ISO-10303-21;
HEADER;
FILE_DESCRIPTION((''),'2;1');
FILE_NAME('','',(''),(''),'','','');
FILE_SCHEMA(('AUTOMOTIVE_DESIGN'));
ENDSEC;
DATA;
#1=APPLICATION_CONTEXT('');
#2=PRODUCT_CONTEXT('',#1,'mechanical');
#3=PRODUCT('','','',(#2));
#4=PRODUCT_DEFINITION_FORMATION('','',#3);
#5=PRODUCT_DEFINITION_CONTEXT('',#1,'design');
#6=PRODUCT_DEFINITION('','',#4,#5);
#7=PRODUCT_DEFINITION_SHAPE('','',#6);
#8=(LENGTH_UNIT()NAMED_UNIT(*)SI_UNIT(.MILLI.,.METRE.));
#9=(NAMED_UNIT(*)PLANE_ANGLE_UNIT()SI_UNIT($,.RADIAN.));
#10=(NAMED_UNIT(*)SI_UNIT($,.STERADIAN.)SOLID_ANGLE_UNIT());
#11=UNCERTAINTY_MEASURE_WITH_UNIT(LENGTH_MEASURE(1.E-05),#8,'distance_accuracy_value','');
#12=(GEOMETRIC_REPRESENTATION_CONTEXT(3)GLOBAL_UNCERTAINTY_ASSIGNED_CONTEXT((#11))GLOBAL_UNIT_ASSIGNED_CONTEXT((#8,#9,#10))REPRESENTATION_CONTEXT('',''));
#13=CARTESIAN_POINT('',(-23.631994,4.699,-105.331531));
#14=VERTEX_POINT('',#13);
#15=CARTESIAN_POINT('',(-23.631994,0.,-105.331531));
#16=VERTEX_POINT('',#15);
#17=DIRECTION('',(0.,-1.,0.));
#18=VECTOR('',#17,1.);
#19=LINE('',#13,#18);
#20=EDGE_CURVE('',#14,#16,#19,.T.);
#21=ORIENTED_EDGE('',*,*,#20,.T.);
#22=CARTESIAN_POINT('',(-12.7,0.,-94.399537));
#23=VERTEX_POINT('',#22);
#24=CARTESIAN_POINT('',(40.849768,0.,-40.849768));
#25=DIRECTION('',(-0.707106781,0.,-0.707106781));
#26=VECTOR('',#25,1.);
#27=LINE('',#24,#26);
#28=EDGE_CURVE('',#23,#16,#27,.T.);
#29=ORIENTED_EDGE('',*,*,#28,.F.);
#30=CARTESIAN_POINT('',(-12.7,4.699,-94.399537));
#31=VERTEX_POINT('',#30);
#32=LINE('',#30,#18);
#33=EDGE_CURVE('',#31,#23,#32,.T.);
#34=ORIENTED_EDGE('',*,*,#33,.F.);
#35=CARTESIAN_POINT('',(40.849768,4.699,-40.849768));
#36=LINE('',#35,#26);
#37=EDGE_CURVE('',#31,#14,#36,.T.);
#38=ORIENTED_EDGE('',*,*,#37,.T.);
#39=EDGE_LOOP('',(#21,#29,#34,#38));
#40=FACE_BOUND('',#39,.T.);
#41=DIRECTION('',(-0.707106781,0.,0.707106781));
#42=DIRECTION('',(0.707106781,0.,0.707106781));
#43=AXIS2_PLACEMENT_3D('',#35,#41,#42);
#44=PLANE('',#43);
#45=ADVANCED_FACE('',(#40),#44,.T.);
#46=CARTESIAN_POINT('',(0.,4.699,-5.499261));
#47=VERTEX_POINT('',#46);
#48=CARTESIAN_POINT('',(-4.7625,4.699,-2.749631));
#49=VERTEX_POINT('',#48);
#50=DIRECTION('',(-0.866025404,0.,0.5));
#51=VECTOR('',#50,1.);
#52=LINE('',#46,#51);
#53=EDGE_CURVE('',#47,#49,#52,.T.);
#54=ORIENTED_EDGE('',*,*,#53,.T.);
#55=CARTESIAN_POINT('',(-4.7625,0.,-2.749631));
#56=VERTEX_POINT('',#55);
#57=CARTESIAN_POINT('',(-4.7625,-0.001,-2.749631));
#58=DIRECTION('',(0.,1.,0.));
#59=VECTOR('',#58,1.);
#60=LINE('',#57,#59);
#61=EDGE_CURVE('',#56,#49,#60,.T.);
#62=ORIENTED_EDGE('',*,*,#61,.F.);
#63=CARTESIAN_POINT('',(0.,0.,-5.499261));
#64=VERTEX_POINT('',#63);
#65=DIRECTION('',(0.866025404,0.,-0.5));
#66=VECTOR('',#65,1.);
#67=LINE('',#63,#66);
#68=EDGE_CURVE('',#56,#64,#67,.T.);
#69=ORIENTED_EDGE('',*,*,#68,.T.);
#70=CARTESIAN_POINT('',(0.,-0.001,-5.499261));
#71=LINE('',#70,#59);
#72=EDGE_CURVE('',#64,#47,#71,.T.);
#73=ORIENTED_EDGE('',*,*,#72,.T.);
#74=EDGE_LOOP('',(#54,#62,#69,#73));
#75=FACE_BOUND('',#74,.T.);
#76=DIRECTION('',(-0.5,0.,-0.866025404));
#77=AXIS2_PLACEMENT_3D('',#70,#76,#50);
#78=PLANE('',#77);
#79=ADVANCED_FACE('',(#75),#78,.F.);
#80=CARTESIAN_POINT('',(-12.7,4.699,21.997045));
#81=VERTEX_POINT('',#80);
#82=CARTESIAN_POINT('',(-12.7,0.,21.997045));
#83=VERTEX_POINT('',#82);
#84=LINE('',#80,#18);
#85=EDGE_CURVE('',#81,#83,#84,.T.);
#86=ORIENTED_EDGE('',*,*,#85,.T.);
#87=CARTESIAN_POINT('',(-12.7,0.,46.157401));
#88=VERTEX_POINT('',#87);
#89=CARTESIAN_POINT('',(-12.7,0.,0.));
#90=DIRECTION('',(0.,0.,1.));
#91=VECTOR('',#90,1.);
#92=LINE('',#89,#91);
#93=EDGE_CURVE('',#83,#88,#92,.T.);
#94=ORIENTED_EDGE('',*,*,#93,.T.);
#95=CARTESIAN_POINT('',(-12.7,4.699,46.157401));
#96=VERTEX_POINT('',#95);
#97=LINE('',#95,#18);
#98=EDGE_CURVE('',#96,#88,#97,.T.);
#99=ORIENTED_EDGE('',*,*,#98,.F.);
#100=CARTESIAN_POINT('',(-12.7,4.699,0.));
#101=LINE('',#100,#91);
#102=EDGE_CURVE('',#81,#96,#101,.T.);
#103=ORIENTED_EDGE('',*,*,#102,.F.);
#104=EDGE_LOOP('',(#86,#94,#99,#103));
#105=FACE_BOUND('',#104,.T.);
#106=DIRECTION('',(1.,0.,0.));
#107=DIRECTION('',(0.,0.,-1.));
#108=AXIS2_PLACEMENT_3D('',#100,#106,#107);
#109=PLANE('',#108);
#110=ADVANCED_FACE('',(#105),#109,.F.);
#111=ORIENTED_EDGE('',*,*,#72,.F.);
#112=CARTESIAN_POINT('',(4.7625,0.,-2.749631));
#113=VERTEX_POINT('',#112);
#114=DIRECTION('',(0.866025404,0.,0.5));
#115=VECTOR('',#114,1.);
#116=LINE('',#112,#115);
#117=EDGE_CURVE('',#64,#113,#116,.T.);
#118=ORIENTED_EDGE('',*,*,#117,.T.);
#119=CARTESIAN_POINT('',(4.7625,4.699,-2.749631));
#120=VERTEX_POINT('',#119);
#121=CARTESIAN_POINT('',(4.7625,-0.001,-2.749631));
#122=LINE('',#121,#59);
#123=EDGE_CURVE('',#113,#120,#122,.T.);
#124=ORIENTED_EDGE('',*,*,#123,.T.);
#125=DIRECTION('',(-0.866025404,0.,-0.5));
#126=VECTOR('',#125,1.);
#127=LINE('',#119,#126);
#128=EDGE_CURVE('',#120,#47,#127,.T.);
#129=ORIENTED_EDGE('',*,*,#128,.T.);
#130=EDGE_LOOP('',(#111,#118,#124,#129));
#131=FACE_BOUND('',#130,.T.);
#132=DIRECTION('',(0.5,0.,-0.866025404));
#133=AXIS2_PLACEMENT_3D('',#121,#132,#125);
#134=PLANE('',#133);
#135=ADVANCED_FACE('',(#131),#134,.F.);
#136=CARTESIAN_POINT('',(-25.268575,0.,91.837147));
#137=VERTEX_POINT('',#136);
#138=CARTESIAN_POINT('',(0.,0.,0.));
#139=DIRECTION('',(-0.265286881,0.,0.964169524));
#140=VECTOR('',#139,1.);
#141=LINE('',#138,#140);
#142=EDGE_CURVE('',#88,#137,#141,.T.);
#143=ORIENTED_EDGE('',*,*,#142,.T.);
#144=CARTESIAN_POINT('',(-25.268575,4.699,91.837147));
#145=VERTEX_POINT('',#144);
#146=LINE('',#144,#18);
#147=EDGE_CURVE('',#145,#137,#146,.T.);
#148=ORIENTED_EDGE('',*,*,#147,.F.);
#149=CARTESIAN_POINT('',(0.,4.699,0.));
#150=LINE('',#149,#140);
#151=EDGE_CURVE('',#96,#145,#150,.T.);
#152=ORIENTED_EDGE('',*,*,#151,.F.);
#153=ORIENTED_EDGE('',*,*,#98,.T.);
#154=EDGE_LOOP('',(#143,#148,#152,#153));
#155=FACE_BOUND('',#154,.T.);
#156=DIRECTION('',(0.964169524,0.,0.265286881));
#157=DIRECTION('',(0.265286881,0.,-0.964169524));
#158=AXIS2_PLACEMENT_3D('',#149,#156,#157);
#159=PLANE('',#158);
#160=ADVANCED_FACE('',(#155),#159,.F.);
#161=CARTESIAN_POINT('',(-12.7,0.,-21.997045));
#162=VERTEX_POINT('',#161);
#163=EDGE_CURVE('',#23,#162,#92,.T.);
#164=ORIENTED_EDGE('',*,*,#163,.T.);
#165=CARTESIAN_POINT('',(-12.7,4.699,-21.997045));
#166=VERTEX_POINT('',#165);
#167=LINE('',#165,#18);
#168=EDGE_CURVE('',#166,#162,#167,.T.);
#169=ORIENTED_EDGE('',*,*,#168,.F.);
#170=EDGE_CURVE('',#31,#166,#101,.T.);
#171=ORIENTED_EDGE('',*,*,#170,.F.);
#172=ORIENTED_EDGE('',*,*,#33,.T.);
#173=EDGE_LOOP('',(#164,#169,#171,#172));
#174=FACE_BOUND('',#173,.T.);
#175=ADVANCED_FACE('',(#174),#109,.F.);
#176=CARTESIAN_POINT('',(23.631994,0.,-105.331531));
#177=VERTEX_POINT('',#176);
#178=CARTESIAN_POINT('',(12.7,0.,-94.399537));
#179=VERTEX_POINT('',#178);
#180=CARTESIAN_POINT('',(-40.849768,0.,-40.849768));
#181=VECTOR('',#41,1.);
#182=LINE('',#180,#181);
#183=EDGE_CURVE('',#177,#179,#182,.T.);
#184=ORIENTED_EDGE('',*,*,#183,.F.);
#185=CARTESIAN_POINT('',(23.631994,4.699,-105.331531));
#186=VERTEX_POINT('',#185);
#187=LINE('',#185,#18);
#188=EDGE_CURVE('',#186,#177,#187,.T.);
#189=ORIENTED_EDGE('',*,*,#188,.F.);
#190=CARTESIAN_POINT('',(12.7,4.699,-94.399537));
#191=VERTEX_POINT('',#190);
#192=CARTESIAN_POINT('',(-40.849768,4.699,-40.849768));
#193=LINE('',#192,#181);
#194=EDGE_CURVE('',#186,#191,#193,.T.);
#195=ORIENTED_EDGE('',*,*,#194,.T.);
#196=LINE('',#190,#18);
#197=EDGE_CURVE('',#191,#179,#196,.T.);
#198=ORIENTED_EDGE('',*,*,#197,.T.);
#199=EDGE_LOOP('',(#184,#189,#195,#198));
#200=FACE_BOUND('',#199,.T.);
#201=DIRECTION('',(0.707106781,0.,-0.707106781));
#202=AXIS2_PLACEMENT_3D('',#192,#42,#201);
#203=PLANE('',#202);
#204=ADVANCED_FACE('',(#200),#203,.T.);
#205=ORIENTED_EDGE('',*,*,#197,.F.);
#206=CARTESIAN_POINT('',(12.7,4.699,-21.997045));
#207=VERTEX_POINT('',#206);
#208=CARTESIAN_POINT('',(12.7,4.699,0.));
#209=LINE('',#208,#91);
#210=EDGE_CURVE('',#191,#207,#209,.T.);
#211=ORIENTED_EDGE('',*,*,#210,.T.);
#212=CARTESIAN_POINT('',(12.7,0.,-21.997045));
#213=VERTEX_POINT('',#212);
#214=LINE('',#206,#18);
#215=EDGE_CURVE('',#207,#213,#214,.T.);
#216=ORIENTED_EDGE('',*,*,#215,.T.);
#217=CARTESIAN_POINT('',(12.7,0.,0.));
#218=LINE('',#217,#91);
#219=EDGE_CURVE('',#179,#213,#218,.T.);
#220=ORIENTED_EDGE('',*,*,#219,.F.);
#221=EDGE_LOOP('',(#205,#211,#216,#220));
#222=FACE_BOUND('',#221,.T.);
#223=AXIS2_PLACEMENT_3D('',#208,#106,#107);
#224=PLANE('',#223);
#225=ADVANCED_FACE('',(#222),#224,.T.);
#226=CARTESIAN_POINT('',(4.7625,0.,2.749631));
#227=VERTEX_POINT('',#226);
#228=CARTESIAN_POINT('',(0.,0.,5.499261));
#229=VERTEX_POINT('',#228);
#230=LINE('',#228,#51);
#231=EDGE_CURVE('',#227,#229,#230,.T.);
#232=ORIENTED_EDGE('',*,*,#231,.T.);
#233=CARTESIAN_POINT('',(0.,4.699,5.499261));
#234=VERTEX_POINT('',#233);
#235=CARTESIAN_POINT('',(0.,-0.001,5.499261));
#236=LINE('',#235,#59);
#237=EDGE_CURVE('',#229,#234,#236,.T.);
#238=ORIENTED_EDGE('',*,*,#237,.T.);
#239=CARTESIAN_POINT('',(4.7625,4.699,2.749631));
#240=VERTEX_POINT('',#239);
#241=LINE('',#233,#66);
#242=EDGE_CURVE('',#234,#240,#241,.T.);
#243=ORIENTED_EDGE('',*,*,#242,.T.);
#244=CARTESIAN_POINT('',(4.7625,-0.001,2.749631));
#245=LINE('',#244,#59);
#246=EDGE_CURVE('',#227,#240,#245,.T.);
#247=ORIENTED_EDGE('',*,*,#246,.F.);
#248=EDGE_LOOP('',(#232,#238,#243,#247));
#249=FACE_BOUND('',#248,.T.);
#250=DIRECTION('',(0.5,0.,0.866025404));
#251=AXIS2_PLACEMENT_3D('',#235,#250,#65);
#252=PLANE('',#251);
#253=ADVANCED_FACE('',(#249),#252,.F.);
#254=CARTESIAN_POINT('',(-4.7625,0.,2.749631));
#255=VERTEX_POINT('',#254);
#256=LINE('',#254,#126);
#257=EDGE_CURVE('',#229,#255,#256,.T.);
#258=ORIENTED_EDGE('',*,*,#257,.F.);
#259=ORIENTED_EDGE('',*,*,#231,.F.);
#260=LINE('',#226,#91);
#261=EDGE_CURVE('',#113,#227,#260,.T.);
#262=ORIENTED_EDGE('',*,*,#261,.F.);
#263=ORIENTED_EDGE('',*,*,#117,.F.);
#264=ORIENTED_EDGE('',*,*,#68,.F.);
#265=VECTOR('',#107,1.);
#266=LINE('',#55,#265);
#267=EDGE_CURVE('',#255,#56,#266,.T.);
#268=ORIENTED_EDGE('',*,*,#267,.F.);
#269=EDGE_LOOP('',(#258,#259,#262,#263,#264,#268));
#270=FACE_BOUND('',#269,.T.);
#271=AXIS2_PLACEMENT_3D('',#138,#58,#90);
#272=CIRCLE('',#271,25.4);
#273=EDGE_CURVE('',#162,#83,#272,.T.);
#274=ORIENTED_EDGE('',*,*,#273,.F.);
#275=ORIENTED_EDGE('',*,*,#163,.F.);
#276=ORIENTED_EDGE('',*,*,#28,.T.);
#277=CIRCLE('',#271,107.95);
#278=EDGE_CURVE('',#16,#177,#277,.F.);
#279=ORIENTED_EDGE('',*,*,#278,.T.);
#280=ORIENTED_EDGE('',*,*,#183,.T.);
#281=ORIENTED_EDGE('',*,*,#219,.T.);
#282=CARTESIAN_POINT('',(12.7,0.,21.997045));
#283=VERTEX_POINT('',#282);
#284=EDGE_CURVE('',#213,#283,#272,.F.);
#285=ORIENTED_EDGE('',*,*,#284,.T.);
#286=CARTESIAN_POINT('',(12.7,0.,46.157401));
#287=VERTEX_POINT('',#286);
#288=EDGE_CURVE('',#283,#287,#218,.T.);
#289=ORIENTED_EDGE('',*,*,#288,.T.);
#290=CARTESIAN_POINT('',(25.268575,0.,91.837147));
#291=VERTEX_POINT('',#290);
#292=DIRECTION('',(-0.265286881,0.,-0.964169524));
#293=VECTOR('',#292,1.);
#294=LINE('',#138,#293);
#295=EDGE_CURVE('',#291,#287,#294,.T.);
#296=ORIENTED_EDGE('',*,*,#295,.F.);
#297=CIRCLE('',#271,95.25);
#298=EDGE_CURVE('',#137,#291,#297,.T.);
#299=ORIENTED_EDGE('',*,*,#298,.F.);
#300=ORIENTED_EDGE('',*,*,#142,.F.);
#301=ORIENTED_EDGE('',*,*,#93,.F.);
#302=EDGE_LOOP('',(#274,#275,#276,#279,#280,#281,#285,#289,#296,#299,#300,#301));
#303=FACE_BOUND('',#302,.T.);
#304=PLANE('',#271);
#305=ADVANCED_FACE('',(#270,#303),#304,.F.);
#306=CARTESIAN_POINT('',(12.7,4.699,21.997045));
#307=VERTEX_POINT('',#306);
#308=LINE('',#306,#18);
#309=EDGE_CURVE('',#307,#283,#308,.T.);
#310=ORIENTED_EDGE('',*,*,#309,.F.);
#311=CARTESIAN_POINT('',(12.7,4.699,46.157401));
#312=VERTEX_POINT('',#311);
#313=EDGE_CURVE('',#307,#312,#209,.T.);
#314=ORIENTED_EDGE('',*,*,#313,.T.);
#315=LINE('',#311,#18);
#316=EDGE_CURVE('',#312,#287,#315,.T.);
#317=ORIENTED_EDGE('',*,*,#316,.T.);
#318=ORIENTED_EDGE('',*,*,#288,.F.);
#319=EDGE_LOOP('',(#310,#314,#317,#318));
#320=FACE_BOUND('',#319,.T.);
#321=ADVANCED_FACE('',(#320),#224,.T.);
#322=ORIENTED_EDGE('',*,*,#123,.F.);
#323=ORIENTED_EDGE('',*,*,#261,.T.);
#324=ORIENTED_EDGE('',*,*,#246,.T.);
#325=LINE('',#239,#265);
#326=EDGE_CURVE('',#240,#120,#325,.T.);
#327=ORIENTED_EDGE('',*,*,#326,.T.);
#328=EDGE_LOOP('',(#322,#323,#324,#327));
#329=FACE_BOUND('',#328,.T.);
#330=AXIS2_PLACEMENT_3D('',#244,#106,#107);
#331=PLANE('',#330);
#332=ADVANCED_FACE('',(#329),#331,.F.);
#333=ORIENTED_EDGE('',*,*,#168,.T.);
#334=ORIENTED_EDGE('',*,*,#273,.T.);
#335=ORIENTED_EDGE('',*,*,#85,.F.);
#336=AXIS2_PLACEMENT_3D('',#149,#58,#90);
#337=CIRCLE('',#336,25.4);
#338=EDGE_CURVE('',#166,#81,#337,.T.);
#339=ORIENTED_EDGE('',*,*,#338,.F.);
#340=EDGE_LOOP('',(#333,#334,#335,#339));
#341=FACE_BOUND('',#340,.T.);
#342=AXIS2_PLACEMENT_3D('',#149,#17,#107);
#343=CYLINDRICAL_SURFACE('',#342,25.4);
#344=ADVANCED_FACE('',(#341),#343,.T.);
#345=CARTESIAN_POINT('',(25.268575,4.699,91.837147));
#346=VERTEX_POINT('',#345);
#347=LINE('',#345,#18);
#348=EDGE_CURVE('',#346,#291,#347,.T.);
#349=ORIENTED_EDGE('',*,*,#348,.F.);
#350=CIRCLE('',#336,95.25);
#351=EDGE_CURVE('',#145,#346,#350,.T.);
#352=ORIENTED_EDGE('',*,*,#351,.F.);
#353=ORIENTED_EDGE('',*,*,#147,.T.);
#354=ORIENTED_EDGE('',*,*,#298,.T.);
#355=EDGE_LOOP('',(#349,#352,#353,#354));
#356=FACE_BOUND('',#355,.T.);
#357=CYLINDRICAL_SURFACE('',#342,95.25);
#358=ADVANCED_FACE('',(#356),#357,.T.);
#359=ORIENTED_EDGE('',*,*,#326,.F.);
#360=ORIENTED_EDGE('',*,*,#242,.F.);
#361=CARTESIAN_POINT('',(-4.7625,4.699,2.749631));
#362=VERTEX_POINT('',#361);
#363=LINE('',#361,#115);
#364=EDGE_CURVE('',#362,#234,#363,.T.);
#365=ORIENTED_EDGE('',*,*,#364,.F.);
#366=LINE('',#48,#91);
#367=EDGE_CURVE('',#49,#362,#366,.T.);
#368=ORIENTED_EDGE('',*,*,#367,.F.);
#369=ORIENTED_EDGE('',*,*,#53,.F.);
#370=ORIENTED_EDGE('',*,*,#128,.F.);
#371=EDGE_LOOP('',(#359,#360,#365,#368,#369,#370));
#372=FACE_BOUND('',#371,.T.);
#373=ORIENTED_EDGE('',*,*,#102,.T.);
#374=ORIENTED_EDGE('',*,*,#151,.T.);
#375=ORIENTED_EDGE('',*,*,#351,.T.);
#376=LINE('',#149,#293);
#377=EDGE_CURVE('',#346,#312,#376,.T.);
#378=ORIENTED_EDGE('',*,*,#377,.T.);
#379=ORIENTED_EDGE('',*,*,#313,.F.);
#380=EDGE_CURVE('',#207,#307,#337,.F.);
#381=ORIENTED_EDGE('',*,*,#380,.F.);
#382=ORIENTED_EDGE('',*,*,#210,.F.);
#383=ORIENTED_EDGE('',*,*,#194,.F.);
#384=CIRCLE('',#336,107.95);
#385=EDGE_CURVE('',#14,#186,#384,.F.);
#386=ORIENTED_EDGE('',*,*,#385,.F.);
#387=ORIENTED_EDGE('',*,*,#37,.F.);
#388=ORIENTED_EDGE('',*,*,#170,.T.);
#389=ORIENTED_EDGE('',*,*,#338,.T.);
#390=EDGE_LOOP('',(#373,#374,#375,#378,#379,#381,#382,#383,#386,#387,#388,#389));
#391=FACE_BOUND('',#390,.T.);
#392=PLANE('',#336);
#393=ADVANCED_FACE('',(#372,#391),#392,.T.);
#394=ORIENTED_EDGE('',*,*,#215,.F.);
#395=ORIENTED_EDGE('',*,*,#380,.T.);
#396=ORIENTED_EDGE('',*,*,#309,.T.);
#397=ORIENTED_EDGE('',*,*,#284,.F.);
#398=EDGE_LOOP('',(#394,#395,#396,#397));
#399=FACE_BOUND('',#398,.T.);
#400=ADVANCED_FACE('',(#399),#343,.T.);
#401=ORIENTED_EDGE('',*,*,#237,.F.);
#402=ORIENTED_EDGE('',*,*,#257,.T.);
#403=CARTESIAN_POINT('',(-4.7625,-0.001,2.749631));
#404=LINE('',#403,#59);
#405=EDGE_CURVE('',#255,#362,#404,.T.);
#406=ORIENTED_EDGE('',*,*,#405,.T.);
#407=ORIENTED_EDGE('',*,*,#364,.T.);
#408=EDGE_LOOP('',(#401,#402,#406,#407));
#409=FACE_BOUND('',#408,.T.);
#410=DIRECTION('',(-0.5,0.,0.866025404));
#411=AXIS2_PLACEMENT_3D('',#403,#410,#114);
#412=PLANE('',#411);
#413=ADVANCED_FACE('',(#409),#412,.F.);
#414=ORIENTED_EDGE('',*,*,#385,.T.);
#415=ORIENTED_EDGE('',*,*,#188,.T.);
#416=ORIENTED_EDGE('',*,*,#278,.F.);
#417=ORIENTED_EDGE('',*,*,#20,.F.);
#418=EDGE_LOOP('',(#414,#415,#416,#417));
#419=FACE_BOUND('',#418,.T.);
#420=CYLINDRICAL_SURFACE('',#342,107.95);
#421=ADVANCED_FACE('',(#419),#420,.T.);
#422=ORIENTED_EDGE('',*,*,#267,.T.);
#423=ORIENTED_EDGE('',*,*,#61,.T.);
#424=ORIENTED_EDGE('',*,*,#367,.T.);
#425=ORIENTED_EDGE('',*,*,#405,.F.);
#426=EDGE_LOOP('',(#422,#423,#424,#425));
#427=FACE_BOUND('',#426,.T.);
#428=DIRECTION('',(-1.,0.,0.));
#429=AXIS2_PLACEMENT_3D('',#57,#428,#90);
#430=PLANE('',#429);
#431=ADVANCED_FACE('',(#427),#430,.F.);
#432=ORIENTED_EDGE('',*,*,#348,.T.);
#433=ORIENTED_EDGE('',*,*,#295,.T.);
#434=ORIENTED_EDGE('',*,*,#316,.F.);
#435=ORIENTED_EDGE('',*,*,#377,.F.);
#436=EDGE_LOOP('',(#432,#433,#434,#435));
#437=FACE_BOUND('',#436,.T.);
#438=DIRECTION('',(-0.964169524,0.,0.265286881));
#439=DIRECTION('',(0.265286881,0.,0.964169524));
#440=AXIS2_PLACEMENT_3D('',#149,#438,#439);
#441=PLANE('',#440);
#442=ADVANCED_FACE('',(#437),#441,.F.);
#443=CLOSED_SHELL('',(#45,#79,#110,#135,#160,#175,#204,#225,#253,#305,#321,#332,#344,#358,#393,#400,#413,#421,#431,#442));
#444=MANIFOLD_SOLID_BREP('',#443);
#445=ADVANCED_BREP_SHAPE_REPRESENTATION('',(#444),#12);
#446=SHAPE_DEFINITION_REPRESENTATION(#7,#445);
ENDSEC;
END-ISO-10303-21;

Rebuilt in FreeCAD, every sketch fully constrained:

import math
import FreeCAD as App
import Part
import Sketcher

V = App.Vector
Q = App.Units.Quantity


def add_polygon(sketch, points):
    """Adds a closed chain of lines whose ends are joined by coincident constraints."""
    first, n = sketch.GeometryCount, len(points)
    for a, b in zip(points, points[1:] + points[:1]):
        sketch.addGeometry(Part.LineSegment(App.Vector(*a, 0), App.Vector(*b, 0)), False)
    for i in range(n):
        sketch.addConstraint(Sketcher.Constraint("Coincident", first + i, 2, first + (i + 1) % n, 1))

doc = App.newDocument("Part")
body = doc.addObject("PartDesign::Body", "Body")

# Sketch on XZ plane
sketch1 = body.newObject("Sketcher::SketchObject", "Sketch")
sketch1.AttachmentSupport = (doc.getObject("XZ_Plane"), [""])
sketch1.MapMode = "FlatFace"
sketch1.addGeometry(Part.ArcOfCircle(Part.Circle(V(0, 0, 0), V(0, 0, 1), 25), math.radians(120), math.radians(240)), False)
sketch1.addGeometry(Part.LineSegment(V(-13, 22, 0), V(-13, 46, 0)), False)
sketch1.addGeometry(Part.LineSegment(V(-13, 46, 0), V(-25, 92, 0)), False)
sketch1.addGeometry(Part.ArcOfCircle(Part.Circle(V(0, 0, 0), V(0, 0, 1), 95), math.radians(97.66), math.radians(105.38)), False)
sketch1.addGeometry(Part.ArcOfCircle(Part.Circle(V(0, 0, 0), V(0, 0, 1), 95), math.radians(82.34), math.radians(97.66)), False)
sketch1.addGeometry(Part.ArcOfCircle(Part.Circle(V(0, 0, 0), V(0, 0, 1), 95), math.radians(74.62), math.radians(82.34)), False)
sketch1.addGeometry(Part.LineSegment(V(25, 92, 0), V(13, 46, 0)), False)
sketch1.addGeometry(Part.LineSegment(V(13, 46, 0), V(13, 22, 0)), False)
sketch1.addGeometry(Part.ArcOfCircle(Part.Circle(V(0, 0, 0), V(0, 0, 1), 25), math.radians(-60), math.radians(60)), False)
sketch1.addGeometry(Part.LineSegment(V(13, -22, 0), V(13, -94, 0)), False)
sketch1.addGeometry(Part.LineSegment(V(13, -94, 0), V(24, -105, 0)), False)
sketch1.addGeometry(Part.ArcOfCircle(Part.Circle(V(0, 0, 0), V(0, 0, 1), 108), math.radians(-103), math.radians(-77)), False)
sketch1.addGeometry(Part.LineSegment(V(-24, -105, 0), V(-13, -94, 0)), False)
sketch1.addGeometry(Part.LineSegment(V(-13, -94, 0), V(-13, -22, 0)), False)
sketch1.addConstraint(Sketcher.Constraint("Coincident", 0, 1, 1, 1))
sketch1.addConstraint(Sketcher.Constraint("Coincident", 1, 2, 2, 1))
sketch1.addConstraint(Sketcher.Constraint("Coincident", 2, 2, 3, 2))
sketch1.addConstraint(Sketcher.Constraint("Tangent", 3, 1, 4, 2))
sketch1.addConstraint(Sketcher.Constraint("Tangent", 4, 1, 5, 2))
sketch1.addConstraint(Sketcher.Constraint("Coincident", 5, 1, 6, 1))
sketch1.addConstraint(Sketcher.Constraint("Coincident", 6, 2, 7, 1))
sketch1.addConstraint(Sketcher.Constraint("Coincident", 7, 2, 8, 2))
sketch1.addConstraint(Sketcher.Constraint("Coincident", 8, 1, 9, 1))
sketch1.addConstraint(Sketcher.Constraint("Coincident", 9, 2, 10, 1))
sketch1.addConstraint(Sketcher.Constraint("Coincident", 10, 2, 11, 2))
sketch1.addConstraint(Sketcher.Constraint("Coincident", 11, 1, 12, 1))
sketch1.addConstraint(Sketcher.Constraint("Coincident", 12, 2, 13, 1))
sketch1.addConstraint(Sketcher.Constraint("Coincident", 13, 2, 0, 2))
sketch1.addConstraint(Sketcher.Constraint("Vertical", 1))
sketch1.addConstraint(Sketcher.Constraint("Vertical", 7))
sketch1.addConstraint(Sketcher.Constraint("Vertical", 9))
sketch1.addConstraint(Sketcher.Constraint("Vertical", 13))
sketch1.addConstraint(Sketcher.Constraint("Coincident", 0, 3, -1, 1))
sketch1.addConstraint(Sketcher.Constraint("Coincident", 3, 3, -1, 1))
sketch1.addConstraint(Sketcher.Constraint("Coincident", 5, 3, -1, 1))
sketch1.addConstraint(Sketcher.Constraint("Coincident", 8, 3, -1, 1))
sketch1.addConstraint(Sketcher.Constraint("Coincident", 11, 3, -1, 1))
sketch1.addConstraint(Sketcher.Constraint("Equal", 0, 8))
sketch1.addConstraint(Sketcher.Constraint("Symmetric", 3, 1, 9, 2, -1, 1))
sketch1.addConstraint(Sketcher.Constraint("Symmetric", 4, 1, 12, 2, -1, 1))
sketch1.addConstraint(Sketcher.Constraint("Symmetric", 1, 2, 6, 2, -2))
sketch1.addConstraint(Sketcher.Constraint("Perpendicular", 10, 12))
sketch1.addConstraint(Sketcher.Constraint("Horizontal", 3, 1, 4, 1))
sketch1.addConstraint(Sketcher.Constraint("Horizontal", 2, 2, 5, 1))
sketch1.addConstraint(Sketcher.Constraint("Horizontal", 10, 2, 11, 1))
sketch1.addConstraint(Sketcher.Constraint("Vertical", 1, 2, 3, 1))
sketch1.addConstraint(Sketcher.Constraint("Radius", 0, Q("1 in")))
sketch1.addConstraint(Sketcher.Constraint("Radius", 3, Q("3.75 in")))
sketch1.addConstraint(Sketcher.Constraint("Radius", 11, Q("4.25 in")))
sketch1.addConstraint(Sketcher.Constraint("DistanceX", 3, 1, 4, 1, Q("1 in")))
sketch1.addConstraint(Sketcher.Constraint("DistanceY", -1, 1, 1, 2, Q("46.157401 mm")))
sketch1.addConstraint(Sketcher.Constraint("DistanceY", 0, 1, 2, 2, Q("69.840102 mm")))
pad1 = body.newObject("PartDesign::Pad", "Pad")
pad1.Profile = sketch1
pad1.Length = Q("0.185 in")
pad1.Reversed = True

# Sketch on XZ plane
sketch2 = body.newObject("Sketcher::SketchObject", "Sketch001")
sketch2.AttachmentSupport = (doc.getObject("XZ_Plane"), [""])
sketch2.MapMode = "FlatFace"
sketch2.AttachmentOffset = App.Placement(V(0, 0, -0.185 * 25.4), App.Rotation())
add_polygon(sketch2, [(-5, -3), (-5, 3), (0, 5), (5, 3), (5, -3), (0, -5)])  # lines 0-5
sketch2.addConstraint(Sketcher.Constraint("Vertical", 0))
sketch2.addConstraint(Sketcher.Constraint("Vertical", 3))
sketch2.addConstraint(Sketcher.Constraint("Symmetric", 0, 2, 3, 2, -1, 1))
sketch2.addConstraint(Sketcher.Constraint("Symmetric", 1, 2, 4, 2, -1, 1))
sketch2.addConstraint(Sketcher.Constraint("PointOnObject", 1, 2, -2))
sketch2.addConstraint(Sketcher.Constraint("Parallel", 2, 5))
sketch2.addConstraint(Sketcher.Constraint("Horizontal", 0, 2, 2, 2))
sketch2.addConstraint(Sketcher.Constraint("Angle", 1, Q("30 deg")))
sketch2.addConstraint(Sketcher.Constraint("DistanceX", 0, 2, -1, 1, Q("0.1875 in")))
sketch2.addConstraint(Sketcher.Constraint("DistanceY", 0, 1, 0, 2, Q("5.499261 mm")))
pocket1 = body.newObject("PartDesign::Pocket", "Pocket")
pocket1.Profile = sketch2
pocket1.Type = "UpToFirst"
pocket1.Reversed = True

doc.recompute()
